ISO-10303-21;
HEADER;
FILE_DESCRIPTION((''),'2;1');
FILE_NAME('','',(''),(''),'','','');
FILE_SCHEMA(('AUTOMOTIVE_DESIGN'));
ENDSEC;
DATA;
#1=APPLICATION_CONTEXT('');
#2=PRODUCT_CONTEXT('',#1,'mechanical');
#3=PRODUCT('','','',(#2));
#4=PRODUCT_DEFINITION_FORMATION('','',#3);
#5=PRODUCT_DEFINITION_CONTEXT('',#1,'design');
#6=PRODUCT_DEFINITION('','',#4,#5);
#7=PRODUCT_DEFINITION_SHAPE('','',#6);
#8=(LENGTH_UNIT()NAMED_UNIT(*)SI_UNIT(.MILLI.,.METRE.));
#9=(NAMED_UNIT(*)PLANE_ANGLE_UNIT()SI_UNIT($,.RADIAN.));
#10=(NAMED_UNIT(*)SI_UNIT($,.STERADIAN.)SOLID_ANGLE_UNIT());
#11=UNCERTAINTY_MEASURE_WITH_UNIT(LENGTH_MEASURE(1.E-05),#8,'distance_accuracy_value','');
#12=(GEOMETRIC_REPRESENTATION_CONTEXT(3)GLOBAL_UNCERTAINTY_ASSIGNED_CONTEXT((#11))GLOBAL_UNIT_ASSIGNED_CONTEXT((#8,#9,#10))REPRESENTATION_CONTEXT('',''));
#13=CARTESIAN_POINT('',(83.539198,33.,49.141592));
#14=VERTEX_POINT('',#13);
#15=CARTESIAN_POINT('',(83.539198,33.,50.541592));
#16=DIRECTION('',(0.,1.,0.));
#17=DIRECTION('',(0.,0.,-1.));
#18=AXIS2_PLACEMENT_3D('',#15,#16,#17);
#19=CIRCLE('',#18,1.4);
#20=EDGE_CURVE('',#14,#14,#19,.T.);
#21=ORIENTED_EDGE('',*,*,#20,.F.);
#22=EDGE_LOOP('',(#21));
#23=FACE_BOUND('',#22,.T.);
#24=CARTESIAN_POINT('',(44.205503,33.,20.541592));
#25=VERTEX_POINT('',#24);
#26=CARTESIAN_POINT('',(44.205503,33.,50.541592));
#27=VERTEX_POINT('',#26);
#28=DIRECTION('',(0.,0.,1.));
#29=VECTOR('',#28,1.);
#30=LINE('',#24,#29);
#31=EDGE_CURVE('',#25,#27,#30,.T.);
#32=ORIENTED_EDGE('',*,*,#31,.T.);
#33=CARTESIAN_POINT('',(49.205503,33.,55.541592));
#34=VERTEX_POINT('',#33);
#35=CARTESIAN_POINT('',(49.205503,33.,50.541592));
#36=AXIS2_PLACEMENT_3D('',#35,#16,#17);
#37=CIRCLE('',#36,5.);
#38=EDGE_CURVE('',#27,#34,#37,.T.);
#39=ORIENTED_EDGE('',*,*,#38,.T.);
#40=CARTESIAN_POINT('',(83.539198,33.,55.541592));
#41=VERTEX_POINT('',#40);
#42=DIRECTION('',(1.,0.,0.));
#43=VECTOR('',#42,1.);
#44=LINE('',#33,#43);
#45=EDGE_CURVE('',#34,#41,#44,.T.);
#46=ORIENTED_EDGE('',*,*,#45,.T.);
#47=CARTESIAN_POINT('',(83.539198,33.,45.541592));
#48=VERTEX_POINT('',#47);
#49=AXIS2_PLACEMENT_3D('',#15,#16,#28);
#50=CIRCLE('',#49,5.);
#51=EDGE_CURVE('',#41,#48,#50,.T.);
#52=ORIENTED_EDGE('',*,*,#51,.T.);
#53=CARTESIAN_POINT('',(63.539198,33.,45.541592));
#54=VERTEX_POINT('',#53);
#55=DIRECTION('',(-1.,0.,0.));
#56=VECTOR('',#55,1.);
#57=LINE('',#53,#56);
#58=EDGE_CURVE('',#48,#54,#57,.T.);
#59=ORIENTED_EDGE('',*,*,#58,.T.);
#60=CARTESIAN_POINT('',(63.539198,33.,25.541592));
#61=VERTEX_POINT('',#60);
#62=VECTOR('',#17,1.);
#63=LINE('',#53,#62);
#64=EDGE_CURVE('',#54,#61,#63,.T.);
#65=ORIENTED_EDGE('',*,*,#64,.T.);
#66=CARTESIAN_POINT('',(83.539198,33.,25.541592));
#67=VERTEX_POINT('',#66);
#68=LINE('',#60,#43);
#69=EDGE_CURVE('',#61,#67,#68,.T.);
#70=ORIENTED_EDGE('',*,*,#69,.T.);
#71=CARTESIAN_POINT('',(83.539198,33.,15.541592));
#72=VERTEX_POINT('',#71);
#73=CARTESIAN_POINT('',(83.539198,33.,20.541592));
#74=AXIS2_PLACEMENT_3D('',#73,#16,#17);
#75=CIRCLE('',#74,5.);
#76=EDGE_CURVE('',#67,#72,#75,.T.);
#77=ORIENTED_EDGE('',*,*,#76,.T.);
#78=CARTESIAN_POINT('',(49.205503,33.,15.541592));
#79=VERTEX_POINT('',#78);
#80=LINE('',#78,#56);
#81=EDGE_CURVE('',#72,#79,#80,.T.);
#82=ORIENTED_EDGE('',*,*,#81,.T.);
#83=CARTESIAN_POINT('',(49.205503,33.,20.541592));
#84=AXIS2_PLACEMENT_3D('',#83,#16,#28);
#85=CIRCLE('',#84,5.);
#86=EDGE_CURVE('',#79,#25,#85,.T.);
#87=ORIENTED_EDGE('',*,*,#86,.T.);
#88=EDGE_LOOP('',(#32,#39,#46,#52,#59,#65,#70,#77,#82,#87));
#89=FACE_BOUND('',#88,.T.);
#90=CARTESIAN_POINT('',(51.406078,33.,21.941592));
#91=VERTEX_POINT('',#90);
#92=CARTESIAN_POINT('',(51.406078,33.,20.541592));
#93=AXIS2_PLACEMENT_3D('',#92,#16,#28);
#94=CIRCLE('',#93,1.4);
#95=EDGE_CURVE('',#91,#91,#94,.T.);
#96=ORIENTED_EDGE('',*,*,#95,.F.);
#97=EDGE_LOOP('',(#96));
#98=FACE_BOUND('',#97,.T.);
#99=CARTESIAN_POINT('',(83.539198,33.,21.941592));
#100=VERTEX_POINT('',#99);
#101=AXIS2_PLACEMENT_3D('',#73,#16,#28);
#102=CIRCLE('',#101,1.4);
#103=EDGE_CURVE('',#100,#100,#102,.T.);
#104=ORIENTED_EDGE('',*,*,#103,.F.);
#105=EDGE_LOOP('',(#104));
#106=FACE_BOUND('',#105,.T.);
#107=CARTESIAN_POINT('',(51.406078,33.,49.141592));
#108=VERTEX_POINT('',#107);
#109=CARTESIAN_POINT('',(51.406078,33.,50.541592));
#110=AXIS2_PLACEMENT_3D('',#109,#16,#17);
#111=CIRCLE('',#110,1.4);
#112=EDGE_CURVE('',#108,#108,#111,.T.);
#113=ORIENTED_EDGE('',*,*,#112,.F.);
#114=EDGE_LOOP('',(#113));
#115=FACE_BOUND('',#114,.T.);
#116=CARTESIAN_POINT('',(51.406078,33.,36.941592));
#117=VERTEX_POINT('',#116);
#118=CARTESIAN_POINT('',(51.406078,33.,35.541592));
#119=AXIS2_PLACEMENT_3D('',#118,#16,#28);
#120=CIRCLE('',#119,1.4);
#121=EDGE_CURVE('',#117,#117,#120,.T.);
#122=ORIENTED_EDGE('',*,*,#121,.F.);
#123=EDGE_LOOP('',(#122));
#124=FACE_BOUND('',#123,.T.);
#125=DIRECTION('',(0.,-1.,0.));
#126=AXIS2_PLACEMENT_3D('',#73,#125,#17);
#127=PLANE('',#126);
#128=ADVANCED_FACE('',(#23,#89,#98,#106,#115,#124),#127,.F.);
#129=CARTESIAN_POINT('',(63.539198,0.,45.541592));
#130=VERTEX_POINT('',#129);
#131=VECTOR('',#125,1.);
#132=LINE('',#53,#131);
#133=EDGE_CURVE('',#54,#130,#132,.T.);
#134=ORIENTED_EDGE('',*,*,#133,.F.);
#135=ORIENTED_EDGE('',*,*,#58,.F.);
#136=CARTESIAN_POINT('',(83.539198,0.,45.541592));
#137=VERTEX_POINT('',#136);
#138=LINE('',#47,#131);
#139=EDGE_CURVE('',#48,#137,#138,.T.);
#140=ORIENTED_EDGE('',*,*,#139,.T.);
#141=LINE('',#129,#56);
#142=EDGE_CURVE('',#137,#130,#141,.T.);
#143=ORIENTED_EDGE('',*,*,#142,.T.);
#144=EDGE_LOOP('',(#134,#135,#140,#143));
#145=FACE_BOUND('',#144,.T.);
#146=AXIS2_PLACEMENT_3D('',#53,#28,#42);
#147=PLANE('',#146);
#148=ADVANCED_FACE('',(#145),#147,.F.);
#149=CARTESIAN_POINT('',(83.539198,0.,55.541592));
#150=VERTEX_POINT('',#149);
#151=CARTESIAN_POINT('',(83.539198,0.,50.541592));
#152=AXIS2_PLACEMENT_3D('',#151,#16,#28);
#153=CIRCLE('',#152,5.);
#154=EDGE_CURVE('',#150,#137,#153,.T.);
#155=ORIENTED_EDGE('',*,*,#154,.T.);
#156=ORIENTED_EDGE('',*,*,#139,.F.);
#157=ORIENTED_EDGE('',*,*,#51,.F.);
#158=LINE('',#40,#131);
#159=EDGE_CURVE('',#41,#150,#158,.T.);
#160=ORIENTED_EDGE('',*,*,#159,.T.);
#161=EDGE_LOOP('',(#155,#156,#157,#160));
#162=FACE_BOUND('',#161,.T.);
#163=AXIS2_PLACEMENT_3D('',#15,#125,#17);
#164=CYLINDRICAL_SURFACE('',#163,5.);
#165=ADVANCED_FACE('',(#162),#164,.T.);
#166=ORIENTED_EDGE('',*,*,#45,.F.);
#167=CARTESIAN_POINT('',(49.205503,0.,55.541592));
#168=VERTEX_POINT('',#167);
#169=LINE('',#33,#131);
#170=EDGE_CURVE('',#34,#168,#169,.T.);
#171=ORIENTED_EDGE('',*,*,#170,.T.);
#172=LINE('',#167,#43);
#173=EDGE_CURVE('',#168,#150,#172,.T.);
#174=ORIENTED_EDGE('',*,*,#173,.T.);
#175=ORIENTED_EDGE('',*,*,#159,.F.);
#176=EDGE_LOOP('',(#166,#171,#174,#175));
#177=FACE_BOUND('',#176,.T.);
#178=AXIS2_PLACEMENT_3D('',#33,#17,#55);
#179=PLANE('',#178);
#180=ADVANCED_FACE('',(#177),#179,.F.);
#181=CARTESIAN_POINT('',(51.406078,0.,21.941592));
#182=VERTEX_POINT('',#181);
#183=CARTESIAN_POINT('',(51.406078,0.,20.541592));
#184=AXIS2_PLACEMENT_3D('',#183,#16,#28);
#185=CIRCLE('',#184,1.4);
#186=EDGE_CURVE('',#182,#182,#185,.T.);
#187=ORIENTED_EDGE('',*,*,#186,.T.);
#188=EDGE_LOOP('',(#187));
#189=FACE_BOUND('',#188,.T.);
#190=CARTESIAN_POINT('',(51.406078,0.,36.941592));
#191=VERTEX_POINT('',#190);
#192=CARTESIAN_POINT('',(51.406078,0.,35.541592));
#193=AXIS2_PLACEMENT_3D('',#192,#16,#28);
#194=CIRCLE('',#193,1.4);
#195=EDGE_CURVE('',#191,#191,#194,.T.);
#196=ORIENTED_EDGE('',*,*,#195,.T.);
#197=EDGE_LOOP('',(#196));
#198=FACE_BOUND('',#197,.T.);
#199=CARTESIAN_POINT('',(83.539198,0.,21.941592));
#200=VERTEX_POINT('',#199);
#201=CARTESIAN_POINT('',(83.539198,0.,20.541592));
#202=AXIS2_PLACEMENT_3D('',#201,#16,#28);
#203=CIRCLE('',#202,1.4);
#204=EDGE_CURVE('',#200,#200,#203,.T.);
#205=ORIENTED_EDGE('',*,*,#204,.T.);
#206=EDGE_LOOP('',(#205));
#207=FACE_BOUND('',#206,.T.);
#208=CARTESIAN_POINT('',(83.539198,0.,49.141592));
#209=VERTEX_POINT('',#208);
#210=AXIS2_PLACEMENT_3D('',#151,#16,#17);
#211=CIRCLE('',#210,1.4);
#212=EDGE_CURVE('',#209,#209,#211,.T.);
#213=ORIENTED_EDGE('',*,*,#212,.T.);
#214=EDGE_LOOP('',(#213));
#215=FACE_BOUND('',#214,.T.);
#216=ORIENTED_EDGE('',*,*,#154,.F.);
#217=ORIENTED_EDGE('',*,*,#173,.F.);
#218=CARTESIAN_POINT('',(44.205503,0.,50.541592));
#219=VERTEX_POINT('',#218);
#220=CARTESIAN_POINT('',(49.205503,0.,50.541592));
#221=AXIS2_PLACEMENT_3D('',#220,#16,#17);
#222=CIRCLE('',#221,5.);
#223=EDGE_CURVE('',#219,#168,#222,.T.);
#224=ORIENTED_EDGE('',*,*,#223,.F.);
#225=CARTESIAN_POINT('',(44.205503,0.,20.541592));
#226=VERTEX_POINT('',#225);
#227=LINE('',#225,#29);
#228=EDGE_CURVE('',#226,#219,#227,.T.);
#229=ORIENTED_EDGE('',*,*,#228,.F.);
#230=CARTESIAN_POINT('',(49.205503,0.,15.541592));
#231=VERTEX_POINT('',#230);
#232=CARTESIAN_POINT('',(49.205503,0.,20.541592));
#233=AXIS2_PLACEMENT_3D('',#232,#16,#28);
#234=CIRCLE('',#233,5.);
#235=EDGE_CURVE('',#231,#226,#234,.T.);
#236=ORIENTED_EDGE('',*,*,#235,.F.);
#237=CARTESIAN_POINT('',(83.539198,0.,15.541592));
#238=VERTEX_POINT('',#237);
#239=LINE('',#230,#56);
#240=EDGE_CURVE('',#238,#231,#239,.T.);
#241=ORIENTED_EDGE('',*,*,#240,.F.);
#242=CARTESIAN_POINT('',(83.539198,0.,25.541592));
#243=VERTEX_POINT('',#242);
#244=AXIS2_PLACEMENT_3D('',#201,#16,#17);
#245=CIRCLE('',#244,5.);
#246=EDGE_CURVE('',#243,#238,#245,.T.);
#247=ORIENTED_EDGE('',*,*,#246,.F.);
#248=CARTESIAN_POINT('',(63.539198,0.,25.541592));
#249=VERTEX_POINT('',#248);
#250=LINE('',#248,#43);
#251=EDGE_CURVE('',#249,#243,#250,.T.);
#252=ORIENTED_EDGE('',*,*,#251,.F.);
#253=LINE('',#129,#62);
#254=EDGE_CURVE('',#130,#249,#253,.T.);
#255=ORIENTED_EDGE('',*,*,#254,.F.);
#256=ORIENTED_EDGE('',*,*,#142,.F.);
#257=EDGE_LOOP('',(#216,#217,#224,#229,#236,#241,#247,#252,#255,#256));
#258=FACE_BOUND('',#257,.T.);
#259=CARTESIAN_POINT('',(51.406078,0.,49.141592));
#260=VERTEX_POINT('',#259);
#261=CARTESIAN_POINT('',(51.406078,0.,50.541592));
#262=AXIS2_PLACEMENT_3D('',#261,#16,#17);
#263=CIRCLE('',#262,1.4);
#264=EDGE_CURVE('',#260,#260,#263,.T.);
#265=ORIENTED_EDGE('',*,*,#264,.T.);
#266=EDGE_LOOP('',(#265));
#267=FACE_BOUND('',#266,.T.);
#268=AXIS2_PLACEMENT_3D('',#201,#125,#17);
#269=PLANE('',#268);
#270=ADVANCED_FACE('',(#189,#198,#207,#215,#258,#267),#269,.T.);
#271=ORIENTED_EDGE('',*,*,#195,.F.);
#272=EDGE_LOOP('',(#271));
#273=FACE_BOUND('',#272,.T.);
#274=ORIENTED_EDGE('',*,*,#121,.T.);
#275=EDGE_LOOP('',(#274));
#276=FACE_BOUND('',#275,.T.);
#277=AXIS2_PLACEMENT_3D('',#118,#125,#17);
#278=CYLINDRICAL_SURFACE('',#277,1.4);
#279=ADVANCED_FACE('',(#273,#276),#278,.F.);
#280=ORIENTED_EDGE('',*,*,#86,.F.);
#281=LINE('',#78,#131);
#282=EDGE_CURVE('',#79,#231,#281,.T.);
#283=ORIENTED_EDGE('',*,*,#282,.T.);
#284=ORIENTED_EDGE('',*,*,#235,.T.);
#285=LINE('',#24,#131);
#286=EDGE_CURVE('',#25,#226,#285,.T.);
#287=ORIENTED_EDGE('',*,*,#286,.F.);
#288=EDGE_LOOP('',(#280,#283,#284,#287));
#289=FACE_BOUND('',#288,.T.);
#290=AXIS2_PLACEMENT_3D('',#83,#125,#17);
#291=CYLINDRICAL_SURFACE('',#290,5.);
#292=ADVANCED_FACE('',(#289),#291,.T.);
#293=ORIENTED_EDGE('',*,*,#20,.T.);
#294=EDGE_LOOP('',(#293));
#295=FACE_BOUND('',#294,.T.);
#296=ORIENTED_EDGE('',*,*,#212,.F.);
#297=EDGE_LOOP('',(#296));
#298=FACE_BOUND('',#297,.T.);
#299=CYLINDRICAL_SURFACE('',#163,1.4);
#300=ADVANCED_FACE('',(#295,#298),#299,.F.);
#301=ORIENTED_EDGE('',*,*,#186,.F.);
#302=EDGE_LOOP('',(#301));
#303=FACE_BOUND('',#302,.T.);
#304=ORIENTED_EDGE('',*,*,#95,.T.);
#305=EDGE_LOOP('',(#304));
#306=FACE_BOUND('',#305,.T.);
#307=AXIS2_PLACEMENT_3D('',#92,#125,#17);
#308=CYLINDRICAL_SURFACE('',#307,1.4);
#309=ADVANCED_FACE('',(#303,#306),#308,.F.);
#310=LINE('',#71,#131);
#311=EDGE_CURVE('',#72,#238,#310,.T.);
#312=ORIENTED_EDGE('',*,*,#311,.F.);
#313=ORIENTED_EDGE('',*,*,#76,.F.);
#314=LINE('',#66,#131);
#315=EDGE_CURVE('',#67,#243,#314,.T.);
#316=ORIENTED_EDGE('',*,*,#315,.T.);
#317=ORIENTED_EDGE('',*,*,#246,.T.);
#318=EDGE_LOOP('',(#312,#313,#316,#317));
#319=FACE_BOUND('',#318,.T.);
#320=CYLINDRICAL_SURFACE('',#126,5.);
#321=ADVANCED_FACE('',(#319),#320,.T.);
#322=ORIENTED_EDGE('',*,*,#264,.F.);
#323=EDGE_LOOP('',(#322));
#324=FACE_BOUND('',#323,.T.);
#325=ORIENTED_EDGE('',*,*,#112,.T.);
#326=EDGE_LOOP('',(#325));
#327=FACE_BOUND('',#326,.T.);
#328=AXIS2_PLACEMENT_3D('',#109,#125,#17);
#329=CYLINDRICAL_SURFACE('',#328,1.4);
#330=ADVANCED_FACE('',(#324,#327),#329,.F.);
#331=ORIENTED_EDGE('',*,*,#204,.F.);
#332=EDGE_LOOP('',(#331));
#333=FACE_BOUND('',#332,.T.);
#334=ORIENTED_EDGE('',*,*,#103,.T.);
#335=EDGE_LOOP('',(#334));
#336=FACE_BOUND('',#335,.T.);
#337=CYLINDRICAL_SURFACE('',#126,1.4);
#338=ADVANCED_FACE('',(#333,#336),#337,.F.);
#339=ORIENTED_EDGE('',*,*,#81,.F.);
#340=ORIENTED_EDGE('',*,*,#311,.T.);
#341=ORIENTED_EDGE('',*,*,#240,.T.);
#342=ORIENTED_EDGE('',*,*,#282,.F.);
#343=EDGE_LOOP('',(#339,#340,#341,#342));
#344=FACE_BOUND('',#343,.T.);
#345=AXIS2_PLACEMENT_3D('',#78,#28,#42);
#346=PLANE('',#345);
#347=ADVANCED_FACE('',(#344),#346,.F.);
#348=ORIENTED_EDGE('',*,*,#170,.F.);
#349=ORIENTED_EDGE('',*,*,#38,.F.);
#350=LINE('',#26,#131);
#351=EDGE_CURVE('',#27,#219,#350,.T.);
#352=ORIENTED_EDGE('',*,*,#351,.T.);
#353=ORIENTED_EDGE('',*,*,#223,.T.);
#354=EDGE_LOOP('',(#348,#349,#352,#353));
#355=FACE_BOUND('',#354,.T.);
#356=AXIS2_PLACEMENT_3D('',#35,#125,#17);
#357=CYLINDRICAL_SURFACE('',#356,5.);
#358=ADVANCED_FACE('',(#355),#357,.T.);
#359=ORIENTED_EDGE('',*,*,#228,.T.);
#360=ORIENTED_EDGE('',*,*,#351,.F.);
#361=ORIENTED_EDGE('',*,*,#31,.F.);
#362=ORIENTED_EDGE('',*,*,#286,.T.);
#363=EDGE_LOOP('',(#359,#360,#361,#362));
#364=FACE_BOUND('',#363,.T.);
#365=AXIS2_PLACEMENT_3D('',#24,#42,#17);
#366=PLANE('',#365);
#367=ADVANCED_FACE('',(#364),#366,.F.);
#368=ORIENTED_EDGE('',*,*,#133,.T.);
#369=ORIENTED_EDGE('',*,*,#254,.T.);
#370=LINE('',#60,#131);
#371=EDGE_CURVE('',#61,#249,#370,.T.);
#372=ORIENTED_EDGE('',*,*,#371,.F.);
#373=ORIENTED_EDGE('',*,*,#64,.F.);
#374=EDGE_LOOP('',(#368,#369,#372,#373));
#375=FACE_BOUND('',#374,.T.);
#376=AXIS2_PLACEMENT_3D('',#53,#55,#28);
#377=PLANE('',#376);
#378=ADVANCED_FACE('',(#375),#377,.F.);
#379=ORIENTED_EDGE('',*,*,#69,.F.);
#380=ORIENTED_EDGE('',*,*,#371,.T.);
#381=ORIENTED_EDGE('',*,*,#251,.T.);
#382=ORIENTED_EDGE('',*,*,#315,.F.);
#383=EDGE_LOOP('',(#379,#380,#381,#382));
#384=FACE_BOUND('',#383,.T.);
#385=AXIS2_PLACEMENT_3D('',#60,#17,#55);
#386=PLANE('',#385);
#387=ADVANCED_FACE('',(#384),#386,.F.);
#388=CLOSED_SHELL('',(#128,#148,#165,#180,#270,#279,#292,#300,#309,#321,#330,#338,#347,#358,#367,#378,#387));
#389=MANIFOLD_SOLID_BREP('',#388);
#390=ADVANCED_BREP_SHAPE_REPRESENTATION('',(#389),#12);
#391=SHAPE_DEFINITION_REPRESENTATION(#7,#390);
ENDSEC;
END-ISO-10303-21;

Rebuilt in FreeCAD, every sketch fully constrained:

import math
import FreeCAD as App
import Part
import Sketcher

V = App.Vector
Q = App.Units.Quantity

doc = App.newDocument("Part")
body = doc.addObject("PartDesign::Body", "Body")

sketch1 = body.newObject("Sketcher::SketchObject", "Sketch")
sketch1.AttachmentSupport = (doc.getObject("XZ_Plane"), [""])
sketch1.MapMode = "FlatFace"
sketch1.addGeometry([
    Part.LineSegment(V(63.539198, 45.541592, 0), V(63.539198, 25.541592, 0)),
    Part.LineSegment(V(63.539198, 25.541592, 0), V(83.539198, 25.541592, 0)),
    Part.ArcOfCircle(Part.Circle(V(83.539198, 20.541592, 0), V(0, 0, 1), 5), math.radians(-90), math.radians(90)),
    Part.LineSegment(V(83.539198, 15.541592, 0), V(49.205503, 15.541592, 0)),
    Part.ArcOfCircle(Part.Circle(V(49.205503, 20.541592, 0), V(0, 0, 1), 5), math.radians(-180), math.radians(-90)),
    Part.LineSegment(V(44.205503, 20.541592, 0), V(44.205503, 50.541592, 0)),
    Part.ArcOfCircle(Part.Circle(V(49.205503, 50.541592, 0), V(0, 0, 1), 5), math.radians(90), math.radians(180)),
    Part.LineSegment(V(49.205503, 55.541592, 0), V(83.539198, 55.541592, 0)),
    Part.ArcOfCircle(Part.Circle(V(83.539198, 50.541592, 0), V(0, 0, 1), 5), math.radians(-90), math.radians(90)),
    Part.LineSegment(V(83.539198, 45.541592, 0), V(63.539198, 45.541592, 0)),
    Part.Circle(V(51.406078, 50.541592, 0), V(0, 0, 1), 1.4),
    Part.Circle(V(83.539198, 50.541592, 0), V(0, 0, 1), 1.4),
    Part.Circle(V(51.406078, 35.541592, 0), V(0, 0, 1), 1.4),
    Part.Circle(V(51.406078, 20.541592, 0), V(0, 0, 1), 1.4),
    Part.Circle(V(83.539198, 20.541592, 0), V(0, 0, 1), 1.4),
], False)
sketch1.addConstraint([
    Sketcher.Constraint("Coincident", 0, 2, 1, 1),
    Sketcher.Constraint("Tangent", 1, 2, 2, 2),
    Sketcher.Constraint("Tangent", 2, 1, 3, 1),
    Sketcher.Constraint("Tangent", 3, 2, 4, 2),
    Sketcher.Constraint("Tangent", 4, 1, 5, 1),
    Sketcher.Constraint("Tangent", 5, 2, 6, 2),
    Sketcher.Constraint("Tangent", 6, 1, 7, 1),
    Sketcher.Constraint("Tangent", 7, 2, 8, 2),
    Sketcher.Constraint("Tangent", 8, 1, 9, 1),
    Sketcher.Constraint("Coincident", 9, 2, 0, 1),
    Sketcher.Constraint("Vertical", 0),
    Sketcher.Constraint("Horizontal", 1),
    Sketcher.Constraint("Horizontal", 3),
    Sketcher.Constraint("Vertical", 5),
    Sketcher.Constraint("Horizontal", 7),
    Sketcher.Constraint("Horizontal", 9),
    Sketcher.Constraint("Coincident", 11, 3, 8, 3),
    Sketcher.Constraint("Coincident", 14, 3, 2, 3),
    Sketcher.Constraint("Equal", 2, 4),
    Sketcher.Constraint("Equal", 4, 6),
    Sketcher.Constraint("Equal", 6, 8),
    Sketcher.Constraint("Equal", 10, 11),
    Sketcher.Constraint("Equal", 11, 12),
    Sketcher.Constraint("Equal", 12, 13),
    Sketcher.Constraint("Equal", 13, 14),
    Sketcher.Constraint("Horizontal", 8, 3, 10, 3),
    Sketcher.Constraint("Horizontal", 4, 3, 13, 3),
    Sketcher.Constraint("Vertical", 2, 3, 8, 3),
    Sketcher.Constraint("Vertical", 10, 3, 12, 3),
    Sketcher.Constraint("Vertical", 12, 3, 13, 3),
    Sketcher.Constraint("Equal", 9, 0),
    Sketcher.Constraint("Radius", 2, Q("5 mm")),
    Sketcher.Constraint("Diameter", 10, Q("2.8 mm")),
    Sketcher.Constraint("DistanceX", 1, 1, 1, 2, Q("20 mm")),
    Sketcher.Constraint("DistanceY", 12, 3, 10, 3, Q("15 mm")),
    Sketcher.Constraint("DistanceX", -1, 1, 2, 3, Q("83.539198 mm")),
    Sketcher.Constraint("DistanceX", 3, 2, 3, 1, Q("34.333696 mm")),
    Sketcher.Constraint("DistanceY", -1, 1, 2, 3, Q("20.541592 mm")),
    Sketcher.Constraint("DistanceX", -1, 1, 10, 3, Q("51.406078 mm")),
])
pad1 = body.newObject("PartDesign::Pad", "Pad")
pad1.Profile = sketch1
pad1.Length = 33
pad1.Reversed = True

doc.recompute()
